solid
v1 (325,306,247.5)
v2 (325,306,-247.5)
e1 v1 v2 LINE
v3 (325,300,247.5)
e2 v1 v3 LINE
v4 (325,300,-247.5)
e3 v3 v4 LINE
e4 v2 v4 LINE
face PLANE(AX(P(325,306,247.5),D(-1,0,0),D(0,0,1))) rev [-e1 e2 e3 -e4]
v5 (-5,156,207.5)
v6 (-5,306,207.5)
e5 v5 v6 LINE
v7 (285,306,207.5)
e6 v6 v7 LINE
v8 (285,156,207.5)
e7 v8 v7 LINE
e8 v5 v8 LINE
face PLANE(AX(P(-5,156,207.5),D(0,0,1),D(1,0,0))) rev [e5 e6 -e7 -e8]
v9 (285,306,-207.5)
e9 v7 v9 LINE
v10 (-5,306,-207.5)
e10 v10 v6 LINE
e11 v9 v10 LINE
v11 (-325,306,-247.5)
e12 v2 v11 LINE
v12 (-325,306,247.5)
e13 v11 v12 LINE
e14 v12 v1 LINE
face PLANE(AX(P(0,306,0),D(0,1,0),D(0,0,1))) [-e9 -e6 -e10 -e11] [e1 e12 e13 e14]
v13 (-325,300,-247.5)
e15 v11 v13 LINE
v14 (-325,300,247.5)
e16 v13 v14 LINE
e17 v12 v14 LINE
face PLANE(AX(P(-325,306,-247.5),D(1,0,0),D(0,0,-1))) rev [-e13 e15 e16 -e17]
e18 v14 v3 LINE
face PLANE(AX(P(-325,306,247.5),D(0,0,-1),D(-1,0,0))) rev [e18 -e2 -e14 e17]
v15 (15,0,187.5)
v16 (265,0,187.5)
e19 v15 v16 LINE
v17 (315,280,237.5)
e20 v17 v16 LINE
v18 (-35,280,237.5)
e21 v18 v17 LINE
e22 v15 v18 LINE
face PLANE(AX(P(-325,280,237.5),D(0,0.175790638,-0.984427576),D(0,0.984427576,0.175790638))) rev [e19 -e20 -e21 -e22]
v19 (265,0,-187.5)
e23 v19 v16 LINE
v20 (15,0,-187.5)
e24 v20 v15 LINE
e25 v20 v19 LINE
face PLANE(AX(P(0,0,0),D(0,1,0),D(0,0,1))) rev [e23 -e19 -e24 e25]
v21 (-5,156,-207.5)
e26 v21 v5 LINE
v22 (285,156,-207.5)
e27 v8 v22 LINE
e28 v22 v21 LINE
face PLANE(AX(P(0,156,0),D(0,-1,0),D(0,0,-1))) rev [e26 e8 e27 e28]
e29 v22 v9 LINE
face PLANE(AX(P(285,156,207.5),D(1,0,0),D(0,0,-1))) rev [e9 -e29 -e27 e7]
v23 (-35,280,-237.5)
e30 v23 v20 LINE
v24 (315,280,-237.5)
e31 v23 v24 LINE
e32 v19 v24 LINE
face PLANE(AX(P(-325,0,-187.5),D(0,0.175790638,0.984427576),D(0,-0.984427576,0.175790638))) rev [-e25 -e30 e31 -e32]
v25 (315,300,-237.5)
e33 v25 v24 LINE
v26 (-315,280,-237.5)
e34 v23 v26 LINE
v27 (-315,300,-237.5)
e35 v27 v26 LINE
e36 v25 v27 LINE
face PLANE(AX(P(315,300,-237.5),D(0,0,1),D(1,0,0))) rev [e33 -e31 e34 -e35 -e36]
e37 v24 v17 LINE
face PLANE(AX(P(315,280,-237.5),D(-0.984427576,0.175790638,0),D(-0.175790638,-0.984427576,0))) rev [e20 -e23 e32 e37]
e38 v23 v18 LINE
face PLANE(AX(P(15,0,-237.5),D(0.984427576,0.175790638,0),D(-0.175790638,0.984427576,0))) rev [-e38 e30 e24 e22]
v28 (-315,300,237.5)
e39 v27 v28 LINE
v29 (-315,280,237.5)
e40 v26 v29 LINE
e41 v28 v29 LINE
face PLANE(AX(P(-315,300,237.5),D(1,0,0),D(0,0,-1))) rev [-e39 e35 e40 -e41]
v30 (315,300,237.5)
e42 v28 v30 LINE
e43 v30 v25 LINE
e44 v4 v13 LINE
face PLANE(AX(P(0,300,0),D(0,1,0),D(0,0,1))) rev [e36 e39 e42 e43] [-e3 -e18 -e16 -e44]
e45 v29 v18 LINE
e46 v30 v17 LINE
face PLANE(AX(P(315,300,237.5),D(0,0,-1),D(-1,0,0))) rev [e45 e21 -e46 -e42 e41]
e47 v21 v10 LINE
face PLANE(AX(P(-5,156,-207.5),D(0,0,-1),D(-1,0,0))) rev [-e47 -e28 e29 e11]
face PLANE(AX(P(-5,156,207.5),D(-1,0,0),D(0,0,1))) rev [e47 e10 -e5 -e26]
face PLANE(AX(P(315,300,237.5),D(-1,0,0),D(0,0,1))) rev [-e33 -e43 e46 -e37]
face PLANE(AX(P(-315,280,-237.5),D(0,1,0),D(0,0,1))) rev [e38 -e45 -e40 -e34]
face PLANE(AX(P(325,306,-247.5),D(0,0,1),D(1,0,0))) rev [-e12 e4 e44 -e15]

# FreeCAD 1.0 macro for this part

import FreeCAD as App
import Part
import Sketcher
from FreeCAD import Vector


def add_polygon(sketch, points):
    """Adds a closed chain of lines whose ends are joined by coincident constraints."""
    first, n = sketch.GeometryCount, len(points)
    for a, b in zip(points, points[1:] + points[:1]):
        sketch.addGeometry(Part.LineSegment(App.Vector(*a, 0), App.Vector(*b, 0)), False)
    for i in range(n):
        sketch.addConstraint(Sketcher.Constraint("Coincident", first + i, 2, first + (i + 1) % n, 1))

doc = App.newDocument("Part")
body = doc.addObject("PartDesign::Body", "Body")

# Sketch on XZ plane
sketch1 = doc.addObject("Sketcher::SketchObject", "Sketch")
body.addObject(sketch1)
sketch1.AttachmentSupport = (doc.XZ_Plane, [""])
sketch1.MapMode = "FlatFace"
add_polygon(sketch1, [(-315, -237.5), (-315, 237.5), (315, 237.5), (315, -237.5)])  # lines 0-3
sketch1.addConstraint(Sketcher.Constraint("Vertical", 0))
sketch1.addConstraint(Sketcher.Constraint("Horizontal", 1))
sketch1.addConstraint(Sketcher.Constraint("Vertical", 2))
sketch1.addConstraint(Sketcher.Constraint("Horizontal", 3))
sketch1.addConstraint(Sketcher.Constraint("Symmetric", 0, 2, 2, 2, -1, 1))
sketch1.addConstraint(Sketcher.Constraint("DistanceX", 1, 1, 1, 2, 630.0))
sketch1.addConstraint(Sketcher.Constraint("DistanceY", 0, 1, 0, 2, 475.0))
pad1 = doc.addObject("PartDesign::Pad", "Pad")
body.addObject(pad1)
pad1.Profile = sketch1
pad1.Length = 300
pad1.Reversed = True

# Sketch on XY plane
sketch2 = doc.addObject("Sketcher::SketchObject", "Sketch001")
body.addObject(sketch2)
sketch2.AttachmentSupport = (doc.XY_Plane, [""])
sketch2.MapMode = "FlatFace"
sketch2.AttachmentOffset = App.Placement(Vector(0, 0, 237.5), App.Rotation())
add_polygon(sketch2, [(-315, 0), (15, 0), (-35, 280), (-315, 280)])  # lines 0-3
add_polygon(sketch2, [(315, 280), (265, 0), (315, 0)])  # lines 4-6
sketch2.addConstraint(Sketcher.Constraint("Horizontal", 0))
sketch2.addConstraint(Sketcher.Constraint("Horizontal", 2))
sketch2.addConstraint(Sketcher.Constraint("Vertical", 3))
sketch2.addConstraint(Sketcher.Constraint("Horizontal", 5))
sketch2.addConstraint(Sketcher.Constraint("Vertical", 6))
sketch2.addConstraint(Sketcher.Constraint("Symmetric", 3, 2, 5, 2, -1, 1))
sketch2.addConstraint(Sketcher.Constraint("PointOnObject", 0, 2, -1))
sketch2.addConstraint(Sketcher.Constraint("Horizontal", 2, 2, 6, 2))
sketch2.addConstraint(Sketcher.Constraint("Equal", 2, 3))
sketch2.addConstraint(Sketcher.Constraint("Equal", 1, 4))
sketch2.addConstraint(Sketcher.Constraint("DistanceX", 0, 1, 0, 2, 330.0))
sketch2.addConstraint(Sketcher.Constraint("DistanceX", 2, 2, 2, 1, 280.0))
sketch2.addConstraint(Sketcher.Constraint("DistanceX", -1, 1, 0, 2, 15.0))
pocket1 = doc.addObject("PartDesign::Pocket", "Pocket")
body.addObject(pocket1)
pocket1.Profile = sketch2
pocket1.Type = "ThroughAll"
pocket1.Midplane = True

# Sketch on XZ plane
sketch3 = doc.addObject("Sketcher::SketchObject", "Sketch002")
body.addObject(sketch3)
sketch3.AttachmentSupport = (doc.XZ_Plane, [""])
sketch3.MapMode = "FlatFace"
sketch3.AttachmentOffset = App.Placement(Vector(0, 0, -300), App.Rotation())
add_polygon(sketch3, [(-325, -247.5), (-325, 247.5), (325, 247.5), (325, -247.5)])  # lines 0-3
sketch3.addConstraint(Sketcher.Constraint("Vertical", 0))
sketch3.addConstraint(Sketcher.Constraint("Horizontal", 1))
sketch3.addConstraint(Sketcher.Constraint("Vertical", 2))
sketch3.addConstraint(Sketcher.Constraint("Horizontal", 3))
sketch3.addConstraint(Sketcher.Constraint("Symmetric", 0, 2, 2, 2, -1, 1))
sketch3.addConstraint(Sketcher.Constraint("DistanceX", 1, 1, 1, 2, 650.0))
sketch3.addConstraint(Sketcher.Constraint("DistanceY", 0, 1, 0, 2, 495.0))
pad2 = doc.addObject("PartDesign::Pad", "Pad001")
body.addObject(pad2)
pad2.Profile = sketch3
pad2.Length = 6
pad2.Reversed = True

# Sketch on YZ plane
sketch4 = doc.addObject("Sketcher::SketchObject", "Sketch003")
body.addObject(sketch4)
sketch4.AttachmentSupport = (doc.YZ_Plane, [""])
sketch4.MapMode = "FlatFace"
sketch4.AttachmentOffset = App.Placement(Vector(0, 0, 315), App.Rotation())
add_polygon(sketch4, [(0, 187.5), (280, 237.5), (0, 237.5)])  # lines 0-2
add_polygon(sketch4, [(0, -237.5), (280, -237.5), (0, -187.5)])  # lines 3-5
sketch4.addConstraint(Sketcher.Constraint("Horizontal", 1))
sketch4.addConstraint(Sketcher.Constraint("Vertical", 2))
sketch4.addConstraint(Sketcher.Constraint("Horizontal", 3))
sketch4.addConstraint(Sketcher.Constraint("Vertical", 5))
sketch4.addConstraint(Sketcher.Constraint("Symmetric", 2, 2, 4, 2, -1, 1))
sketch4.addConstraint(Sketcher.Constraint("Symmetric", 0, 2, 3, 2, -1))
sketch4.addConstraint(Sketcher.Constraint("PointOnObject", 1, 2, -2))
sketch4.addConstraint(Sketcher.Constraint("DistanceX", 1, 2, 1, 1, 280.0))
sketch4.addConstraint(Sketcher.Constraint("DistanceY", 2, 2, 2, 1, 50.0))
sketch4.addConstraint(Sketcher.Constraint("DistanceY", 3, 2, 0, 2, 475.0))
pocket2 = doc.addObject("PartDesign::Pocket", "Pocket001")
body.addObject(pocket2)
pocket2.Profile = sketch4
pocket2.Type = "ThroughAll"
pocket2.Midplane = True

# Sketch on XZ plane
sketch5 = doc.addObject("Sketcher::SketchObject", "Sketch004")
body.addObject(sketch5)
sketch5.AttachmentSupport = (doc.XZ_Plane, [""])
sketch5.MapMode = "FlatFace"
sketch5.AttachmentOffset = App.Placement(Vector(0, 0, -306), App.Rotation())
add_polygon(sketch5, [(-5, -207.5), (-5, 207.5), (285, 207.5), (285, -207.5)])  # lines 0-3
sketch5.addConstraint(Sketcher.Constraint("Vertical", 0))
sketch5.addConstraint(Sketcher.Constraint("Horizontal", 1))
sketch5.addConstraint(Sketcher.Constraint("Vertical", 2))
sketch5.addConstraint(Sketcher.Constraint("Horizontal", 3))
sketch5.addConstraint(Sketcher.Constraint("DistanceX", 1, 1, 1, 2, 290.0))
sketch5.addConstraint(Sketcher.Constraint("DistanceY", 0, 1, 0, 2, 415.0))
sketch5.addConstraint(Sketcher.Constraint("DistanceX", 0, 2, -1, 1, 5.0))
sketch5.addConstraint(Sketcher.Constraint("DistanceY", -1, 1, 0, 2, 207.5))
pocket3 = doc.addObject("PartDesign::Pocket", "Pocket002")
body.addObject(pocket3)
pocket3.Profile = sketch5
pocket3.Length = 150
pocket3.Reversed = True

doc.recompute()
